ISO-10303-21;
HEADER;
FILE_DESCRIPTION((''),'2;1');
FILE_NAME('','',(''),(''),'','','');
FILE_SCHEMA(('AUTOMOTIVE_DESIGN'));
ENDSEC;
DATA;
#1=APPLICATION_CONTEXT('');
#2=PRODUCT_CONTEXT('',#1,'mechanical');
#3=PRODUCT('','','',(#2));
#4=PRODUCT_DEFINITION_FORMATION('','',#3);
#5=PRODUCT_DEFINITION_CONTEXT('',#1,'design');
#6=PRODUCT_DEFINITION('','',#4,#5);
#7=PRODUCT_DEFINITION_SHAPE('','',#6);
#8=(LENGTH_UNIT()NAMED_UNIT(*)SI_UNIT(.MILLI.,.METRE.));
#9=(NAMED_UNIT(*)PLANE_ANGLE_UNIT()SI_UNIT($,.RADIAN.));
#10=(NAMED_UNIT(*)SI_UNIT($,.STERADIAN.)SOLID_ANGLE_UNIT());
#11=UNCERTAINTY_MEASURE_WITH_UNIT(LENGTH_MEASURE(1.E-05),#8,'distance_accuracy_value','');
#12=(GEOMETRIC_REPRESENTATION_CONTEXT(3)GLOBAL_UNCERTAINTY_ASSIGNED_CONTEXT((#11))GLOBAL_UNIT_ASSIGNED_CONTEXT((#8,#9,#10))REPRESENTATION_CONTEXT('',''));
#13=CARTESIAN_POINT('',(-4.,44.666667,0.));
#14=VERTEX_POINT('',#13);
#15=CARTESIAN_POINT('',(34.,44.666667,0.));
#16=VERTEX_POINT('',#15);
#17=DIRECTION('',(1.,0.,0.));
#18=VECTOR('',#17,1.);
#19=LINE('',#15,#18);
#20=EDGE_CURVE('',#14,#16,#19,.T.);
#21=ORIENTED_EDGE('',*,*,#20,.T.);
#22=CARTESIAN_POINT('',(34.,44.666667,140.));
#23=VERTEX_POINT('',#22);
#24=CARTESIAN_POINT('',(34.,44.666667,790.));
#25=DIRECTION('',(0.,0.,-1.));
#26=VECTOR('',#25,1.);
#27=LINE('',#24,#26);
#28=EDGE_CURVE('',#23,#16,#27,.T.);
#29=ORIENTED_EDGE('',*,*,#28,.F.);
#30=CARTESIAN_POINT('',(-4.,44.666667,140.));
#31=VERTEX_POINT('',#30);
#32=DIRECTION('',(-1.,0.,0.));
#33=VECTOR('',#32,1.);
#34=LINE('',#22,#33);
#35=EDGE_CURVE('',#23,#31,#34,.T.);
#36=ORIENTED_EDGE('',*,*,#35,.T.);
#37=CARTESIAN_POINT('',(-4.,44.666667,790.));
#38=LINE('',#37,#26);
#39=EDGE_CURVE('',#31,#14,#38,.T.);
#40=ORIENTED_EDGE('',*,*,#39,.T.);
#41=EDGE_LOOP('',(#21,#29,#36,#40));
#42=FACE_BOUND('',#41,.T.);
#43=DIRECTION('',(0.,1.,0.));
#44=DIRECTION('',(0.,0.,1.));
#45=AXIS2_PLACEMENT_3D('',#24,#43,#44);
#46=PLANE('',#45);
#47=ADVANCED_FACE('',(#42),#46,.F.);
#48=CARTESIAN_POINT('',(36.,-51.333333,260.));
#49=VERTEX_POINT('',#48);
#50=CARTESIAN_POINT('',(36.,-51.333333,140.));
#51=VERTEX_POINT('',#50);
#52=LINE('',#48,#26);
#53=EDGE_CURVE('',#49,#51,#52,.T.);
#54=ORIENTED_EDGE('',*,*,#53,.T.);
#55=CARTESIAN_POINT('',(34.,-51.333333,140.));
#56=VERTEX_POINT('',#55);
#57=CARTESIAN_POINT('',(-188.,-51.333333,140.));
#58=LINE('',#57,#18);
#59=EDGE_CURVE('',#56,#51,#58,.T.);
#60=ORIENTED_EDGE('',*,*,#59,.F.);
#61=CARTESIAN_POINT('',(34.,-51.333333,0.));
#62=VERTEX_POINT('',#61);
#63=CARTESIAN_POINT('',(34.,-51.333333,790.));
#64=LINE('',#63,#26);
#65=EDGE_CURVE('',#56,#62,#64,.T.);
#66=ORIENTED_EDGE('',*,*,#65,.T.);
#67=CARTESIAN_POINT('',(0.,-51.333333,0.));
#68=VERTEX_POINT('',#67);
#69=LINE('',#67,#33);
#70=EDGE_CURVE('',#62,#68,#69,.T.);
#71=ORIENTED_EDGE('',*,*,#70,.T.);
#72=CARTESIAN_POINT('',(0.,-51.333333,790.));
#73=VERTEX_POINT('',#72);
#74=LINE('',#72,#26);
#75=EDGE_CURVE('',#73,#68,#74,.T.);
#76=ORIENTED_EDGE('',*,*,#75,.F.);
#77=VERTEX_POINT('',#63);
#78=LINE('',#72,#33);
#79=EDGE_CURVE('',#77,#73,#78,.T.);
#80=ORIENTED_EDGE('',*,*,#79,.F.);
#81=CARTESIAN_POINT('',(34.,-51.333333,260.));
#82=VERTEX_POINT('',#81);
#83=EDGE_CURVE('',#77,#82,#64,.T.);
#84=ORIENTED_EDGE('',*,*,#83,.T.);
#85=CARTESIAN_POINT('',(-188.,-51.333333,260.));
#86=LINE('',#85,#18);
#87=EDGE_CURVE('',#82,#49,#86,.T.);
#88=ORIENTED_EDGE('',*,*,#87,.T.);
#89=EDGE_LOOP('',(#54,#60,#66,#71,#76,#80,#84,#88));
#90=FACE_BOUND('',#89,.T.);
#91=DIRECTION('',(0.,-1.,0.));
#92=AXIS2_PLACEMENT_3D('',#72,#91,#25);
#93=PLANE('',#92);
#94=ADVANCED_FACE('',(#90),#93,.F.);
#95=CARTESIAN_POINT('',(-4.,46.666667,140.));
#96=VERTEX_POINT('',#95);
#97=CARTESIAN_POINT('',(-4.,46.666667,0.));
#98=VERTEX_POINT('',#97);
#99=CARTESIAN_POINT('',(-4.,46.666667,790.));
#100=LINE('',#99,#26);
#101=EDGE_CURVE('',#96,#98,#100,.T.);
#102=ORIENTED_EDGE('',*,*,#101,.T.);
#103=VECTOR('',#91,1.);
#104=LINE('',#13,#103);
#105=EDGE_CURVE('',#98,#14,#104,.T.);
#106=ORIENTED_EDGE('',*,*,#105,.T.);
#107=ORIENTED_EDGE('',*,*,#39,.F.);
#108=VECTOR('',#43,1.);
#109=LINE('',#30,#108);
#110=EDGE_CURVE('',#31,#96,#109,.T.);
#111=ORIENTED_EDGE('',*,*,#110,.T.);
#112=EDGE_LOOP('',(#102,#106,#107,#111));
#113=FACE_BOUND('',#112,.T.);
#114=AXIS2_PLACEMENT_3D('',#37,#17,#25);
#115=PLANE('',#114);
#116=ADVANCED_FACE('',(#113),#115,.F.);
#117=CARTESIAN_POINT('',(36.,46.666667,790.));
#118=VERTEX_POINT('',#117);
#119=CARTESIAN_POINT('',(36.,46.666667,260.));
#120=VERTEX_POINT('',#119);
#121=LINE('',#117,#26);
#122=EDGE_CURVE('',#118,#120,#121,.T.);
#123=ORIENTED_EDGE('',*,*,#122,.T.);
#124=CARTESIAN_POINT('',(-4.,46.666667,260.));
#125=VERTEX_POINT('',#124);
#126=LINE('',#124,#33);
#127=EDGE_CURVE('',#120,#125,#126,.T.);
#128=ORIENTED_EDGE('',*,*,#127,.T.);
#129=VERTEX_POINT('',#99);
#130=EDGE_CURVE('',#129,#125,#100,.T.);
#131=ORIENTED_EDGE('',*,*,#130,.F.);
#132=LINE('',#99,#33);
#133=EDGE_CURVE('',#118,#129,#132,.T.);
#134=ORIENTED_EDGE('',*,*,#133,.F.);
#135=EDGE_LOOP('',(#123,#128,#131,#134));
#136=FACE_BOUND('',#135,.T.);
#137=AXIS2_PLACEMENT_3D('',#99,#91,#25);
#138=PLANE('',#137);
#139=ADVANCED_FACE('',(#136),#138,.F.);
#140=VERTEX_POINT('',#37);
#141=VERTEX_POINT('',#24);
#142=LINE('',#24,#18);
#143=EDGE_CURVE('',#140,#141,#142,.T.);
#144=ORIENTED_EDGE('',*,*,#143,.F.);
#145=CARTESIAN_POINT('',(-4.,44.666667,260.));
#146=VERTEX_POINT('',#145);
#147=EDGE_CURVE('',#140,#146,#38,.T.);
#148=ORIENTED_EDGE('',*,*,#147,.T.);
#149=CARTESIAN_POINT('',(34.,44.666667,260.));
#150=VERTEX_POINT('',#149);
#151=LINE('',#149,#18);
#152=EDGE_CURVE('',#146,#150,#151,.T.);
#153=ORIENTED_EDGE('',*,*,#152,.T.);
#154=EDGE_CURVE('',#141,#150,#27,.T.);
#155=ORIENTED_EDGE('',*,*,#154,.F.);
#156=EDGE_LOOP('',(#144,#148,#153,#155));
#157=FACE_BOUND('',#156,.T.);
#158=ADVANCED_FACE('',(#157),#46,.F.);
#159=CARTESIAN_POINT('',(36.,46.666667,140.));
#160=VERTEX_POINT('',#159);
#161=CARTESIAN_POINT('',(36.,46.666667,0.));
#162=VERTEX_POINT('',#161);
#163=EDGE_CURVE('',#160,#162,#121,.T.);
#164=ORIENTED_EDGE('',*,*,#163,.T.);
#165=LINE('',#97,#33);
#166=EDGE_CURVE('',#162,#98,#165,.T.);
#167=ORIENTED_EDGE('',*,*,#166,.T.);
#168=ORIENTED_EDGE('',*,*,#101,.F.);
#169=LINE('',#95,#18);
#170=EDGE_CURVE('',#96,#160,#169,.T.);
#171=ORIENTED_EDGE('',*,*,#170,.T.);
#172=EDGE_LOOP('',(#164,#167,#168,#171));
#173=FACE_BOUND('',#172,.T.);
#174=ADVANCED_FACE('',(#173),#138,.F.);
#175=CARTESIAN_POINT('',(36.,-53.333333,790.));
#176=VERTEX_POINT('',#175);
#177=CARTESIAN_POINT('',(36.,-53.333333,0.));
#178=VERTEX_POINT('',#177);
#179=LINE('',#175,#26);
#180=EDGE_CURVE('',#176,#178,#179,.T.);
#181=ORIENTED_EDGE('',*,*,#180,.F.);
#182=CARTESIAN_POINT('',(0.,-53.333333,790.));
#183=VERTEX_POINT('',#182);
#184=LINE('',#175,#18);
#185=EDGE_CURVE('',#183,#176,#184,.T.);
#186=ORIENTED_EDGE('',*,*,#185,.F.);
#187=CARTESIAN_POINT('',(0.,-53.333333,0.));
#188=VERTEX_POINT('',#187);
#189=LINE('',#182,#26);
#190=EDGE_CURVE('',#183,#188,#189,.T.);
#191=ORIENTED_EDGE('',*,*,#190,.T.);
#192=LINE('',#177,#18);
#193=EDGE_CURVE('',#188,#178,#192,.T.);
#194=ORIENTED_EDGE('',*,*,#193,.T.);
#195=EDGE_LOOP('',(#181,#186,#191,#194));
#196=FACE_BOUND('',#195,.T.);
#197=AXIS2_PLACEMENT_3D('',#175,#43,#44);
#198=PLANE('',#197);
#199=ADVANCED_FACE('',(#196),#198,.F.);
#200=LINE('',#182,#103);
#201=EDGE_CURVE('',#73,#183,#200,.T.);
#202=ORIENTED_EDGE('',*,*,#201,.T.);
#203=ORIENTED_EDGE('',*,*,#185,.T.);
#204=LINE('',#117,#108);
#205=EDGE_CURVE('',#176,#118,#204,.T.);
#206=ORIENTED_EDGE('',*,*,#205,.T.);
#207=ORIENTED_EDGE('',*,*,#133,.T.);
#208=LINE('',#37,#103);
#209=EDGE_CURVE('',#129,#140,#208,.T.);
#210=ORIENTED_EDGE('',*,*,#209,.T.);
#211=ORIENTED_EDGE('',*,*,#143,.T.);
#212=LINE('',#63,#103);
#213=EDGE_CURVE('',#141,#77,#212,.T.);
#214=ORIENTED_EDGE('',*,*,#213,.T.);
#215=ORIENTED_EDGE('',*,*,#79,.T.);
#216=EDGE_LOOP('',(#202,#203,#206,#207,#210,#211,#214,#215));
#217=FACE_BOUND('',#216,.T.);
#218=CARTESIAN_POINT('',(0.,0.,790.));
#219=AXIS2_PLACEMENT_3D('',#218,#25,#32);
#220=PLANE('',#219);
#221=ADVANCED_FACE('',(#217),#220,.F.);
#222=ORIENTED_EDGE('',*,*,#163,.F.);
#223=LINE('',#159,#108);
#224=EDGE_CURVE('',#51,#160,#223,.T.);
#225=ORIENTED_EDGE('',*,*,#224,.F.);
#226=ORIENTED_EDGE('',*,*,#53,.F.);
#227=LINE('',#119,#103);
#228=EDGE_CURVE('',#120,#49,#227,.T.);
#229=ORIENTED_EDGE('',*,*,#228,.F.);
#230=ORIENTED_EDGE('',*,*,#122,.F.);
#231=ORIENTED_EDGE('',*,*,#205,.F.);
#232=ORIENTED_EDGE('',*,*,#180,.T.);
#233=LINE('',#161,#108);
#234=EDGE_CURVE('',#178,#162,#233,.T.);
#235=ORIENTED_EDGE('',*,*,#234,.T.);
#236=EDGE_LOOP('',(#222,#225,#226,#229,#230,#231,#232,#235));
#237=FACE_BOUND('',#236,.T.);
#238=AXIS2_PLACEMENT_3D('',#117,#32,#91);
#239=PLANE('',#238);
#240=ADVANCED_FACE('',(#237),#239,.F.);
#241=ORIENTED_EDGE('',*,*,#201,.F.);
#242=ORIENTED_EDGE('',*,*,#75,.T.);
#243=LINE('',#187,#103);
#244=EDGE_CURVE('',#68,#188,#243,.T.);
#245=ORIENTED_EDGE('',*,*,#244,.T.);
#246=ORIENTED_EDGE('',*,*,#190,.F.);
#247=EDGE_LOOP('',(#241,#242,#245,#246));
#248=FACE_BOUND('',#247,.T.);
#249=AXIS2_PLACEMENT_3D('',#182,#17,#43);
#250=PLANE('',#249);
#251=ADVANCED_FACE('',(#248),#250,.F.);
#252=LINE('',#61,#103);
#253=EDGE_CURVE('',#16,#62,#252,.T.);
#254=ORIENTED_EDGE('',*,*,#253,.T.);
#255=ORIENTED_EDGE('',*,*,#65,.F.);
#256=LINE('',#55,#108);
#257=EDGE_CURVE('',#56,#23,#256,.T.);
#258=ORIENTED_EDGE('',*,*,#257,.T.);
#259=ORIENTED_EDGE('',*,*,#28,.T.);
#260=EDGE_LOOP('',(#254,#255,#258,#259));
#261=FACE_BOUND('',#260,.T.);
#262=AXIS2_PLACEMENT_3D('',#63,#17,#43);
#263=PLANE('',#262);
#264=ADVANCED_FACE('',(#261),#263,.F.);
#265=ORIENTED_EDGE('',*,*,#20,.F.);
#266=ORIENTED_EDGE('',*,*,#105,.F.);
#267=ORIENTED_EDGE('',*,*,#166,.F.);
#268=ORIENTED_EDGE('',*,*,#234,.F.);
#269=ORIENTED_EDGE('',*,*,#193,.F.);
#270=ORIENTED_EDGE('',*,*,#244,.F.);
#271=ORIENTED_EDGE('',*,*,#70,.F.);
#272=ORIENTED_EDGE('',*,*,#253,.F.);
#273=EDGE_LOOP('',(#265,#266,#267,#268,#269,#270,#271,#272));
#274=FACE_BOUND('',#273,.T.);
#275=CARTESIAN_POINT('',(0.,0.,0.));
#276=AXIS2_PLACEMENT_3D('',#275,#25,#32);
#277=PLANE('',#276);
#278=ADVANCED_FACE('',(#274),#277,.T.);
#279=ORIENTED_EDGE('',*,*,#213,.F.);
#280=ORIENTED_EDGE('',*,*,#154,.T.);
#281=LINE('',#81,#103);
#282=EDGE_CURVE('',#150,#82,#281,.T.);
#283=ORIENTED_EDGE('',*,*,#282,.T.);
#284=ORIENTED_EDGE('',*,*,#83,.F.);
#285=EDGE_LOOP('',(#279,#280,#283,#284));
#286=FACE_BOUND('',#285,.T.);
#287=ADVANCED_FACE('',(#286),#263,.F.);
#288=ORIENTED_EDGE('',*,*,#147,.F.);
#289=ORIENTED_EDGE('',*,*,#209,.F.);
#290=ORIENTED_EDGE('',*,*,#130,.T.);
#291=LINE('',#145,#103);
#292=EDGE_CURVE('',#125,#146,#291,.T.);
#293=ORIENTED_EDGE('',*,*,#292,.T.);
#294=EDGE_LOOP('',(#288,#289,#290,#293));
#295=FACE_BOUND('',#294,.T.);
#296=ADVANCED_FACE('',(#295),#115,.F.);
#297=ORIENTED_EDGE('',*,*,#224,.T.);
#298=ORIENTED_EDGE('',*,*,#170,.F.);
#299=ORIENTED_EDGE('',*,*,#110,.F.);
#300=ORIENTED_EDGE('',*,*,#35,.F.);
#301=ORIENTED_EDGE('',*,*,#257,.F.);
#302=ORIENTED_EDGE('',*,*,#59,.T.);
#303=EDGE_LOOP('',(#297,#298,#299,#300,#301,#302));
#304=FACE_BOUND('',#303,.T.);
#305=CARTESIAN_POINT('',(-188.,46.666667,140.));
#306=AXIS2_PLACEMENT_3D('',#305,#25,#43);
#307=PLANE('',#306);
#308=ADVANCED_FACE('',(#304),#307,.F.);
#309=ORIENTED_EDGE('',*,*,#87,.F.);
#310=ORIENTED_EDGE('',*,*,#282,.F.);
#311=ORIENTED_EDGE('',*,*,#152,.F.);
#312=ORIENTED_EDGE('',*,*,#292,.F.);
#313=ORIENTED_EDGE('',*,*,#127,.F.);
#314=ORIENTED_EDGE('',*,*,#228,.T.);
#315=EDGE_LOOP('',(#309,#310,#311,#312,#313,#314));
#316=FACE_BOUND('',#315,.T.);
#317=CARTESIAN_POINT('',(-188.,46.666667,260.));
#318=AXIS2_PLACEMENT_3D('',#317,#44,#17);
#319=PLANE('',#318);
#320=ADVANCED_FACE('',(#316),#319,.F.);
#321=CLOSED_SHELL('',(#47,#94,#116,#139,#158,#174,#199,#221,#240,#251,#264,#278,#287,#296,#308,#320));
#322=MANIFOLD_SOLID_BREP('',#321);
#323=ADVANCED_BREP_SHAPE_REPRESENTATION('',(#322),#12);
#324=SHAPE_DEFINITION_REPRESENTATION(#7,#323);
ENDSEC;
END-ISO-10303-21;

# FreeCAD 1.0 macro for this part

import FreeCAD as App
import Part
import Sketcher
Q = App.Units.Quantity


def add_polygon(sketch, points):
    """Adds a closed chain of lines whose ends are joined by coincident constraints."""
    first, n = sketch.GeometryCount, len(points)
    for a, b in zip(points, points[1:] + points[:1]):
        sketch.addGeometry(Part.LineSegment(App.Vector(*a, 0), App.Vector(*b, 0)), False)
    for i in range(n):
        sketch.addConstraint(Sketcher.Constraint("Coincident", first + i, 2, first + (i + 1) % n, 1))

doc = App.newDocument("Part")
body = doc.addObject("PartDesign::Body", "Body")

# Sketch on XY plane
sketch1 = doc.addObject("Sketcher::SketchObject", "Sketch")
body.addObject(sketch1)
sketch1.AttachmentSupport = (doc.XY_Plane, [""])
sketch1.MapMode = "FlatFace"
add_polygon(sketch1, [(36, 46.7), (-4, 46.7), (-4, 44.7), (34, 44.7), (34, -51.3), (0, -51.3), (0, -53.3), (36, -53.3)])  # lines 0-7
sketch1.addConstraint([
    Sketcher.Constraint("Horizontal", 0),
    Sketcher.Constraint("Vertical", 1),
    Sketcher.Constraint("Horizontal", 2),
    Sketcher.Constraint("Vertical", 3),
    Sketcher.Constraint("Horizontal", 4),
    Sketcher.Constraint("Vertical", 5),
    Sketcher.Constraint("Horizontal", 6),
    Sketcher.Constraint("Vertical", 7),
    Sketcher.Constraint("PointOnObject", 4, 2, -2),
    Sketcher.Constraint("Equal", 1, 5),
    Sketcher.Constraint("DistanceX", 0, 2, 0, 1, Q("40 mm")),
    Sketcher.Constraint("DistanceX", 2, 1, 2, 2, Q("38 mm")),
    Sketcher.Constraint("DistanceX", 4, 2, 4, 1, Q("34 mm")),
    Sketcher.Constraint("DistanceY", 1, 2, 1, 1, Q("2 mm")),
    Sketcher.Constraint("DistanceY", 3, 2, 3, 1, Q("96 mm")),
    Sketcher.Constraint("DistanceY", -1, 1, 0, 2, Q("46.666667 mm")),
])
pad1 = doc.addObject("PartDesign::Pad", "Pad")
body.addObject(pad1)
pad1.Profile = sketch1
pad1.Length = 790

# Sketch on YZ plane
sketch2 = doc.addObject("Sketcher::SketchObject", "Sketch001")
body.addObject(sketch2)
sketch2.AttachmentSupport = (doc.YZ_Plane, [""])
sketch2.MapMode = "FlatFace"
sketch2.AttachmentOffset = App.Placement(App.Vector(0, 0, 36), App.Rotation())
add_polygon(sketch2, [(47, 260), (-51, 260), (-51, 140), (47, 140)])  # lines 0-3
sketch2.addConstraint([
    Sketcher.Constraint("Horizontal", 0),
    Sketcher.Constraint("Vertical", 1),
    Sketcher.Constraint("Horizontal", 2),
    Sketcher.Constraint("Vertical", 3),
    Sketcher.Constraint("DistanceX", 0, 2, 0, 1, Q("98 mm")),
    Sketcher.Constraint("DistanceY", 1, 2, 1, 1, Q("120 mm")),
    Sketcher.Constraint("DistanceY", -1, 1, 0, 2, Q("260 mm")),
    Sketcher.Constraint("DistanceX", 0, 2, -1, 1, Q("51.333333 mm")),
])
pocket1 = doc.addObject("PartDesign::Pocket", "Pocket")
body.addObject(pocket1)
pocket1.Profile = sketch2
pocket1.Length = 224

doc.recompute()
